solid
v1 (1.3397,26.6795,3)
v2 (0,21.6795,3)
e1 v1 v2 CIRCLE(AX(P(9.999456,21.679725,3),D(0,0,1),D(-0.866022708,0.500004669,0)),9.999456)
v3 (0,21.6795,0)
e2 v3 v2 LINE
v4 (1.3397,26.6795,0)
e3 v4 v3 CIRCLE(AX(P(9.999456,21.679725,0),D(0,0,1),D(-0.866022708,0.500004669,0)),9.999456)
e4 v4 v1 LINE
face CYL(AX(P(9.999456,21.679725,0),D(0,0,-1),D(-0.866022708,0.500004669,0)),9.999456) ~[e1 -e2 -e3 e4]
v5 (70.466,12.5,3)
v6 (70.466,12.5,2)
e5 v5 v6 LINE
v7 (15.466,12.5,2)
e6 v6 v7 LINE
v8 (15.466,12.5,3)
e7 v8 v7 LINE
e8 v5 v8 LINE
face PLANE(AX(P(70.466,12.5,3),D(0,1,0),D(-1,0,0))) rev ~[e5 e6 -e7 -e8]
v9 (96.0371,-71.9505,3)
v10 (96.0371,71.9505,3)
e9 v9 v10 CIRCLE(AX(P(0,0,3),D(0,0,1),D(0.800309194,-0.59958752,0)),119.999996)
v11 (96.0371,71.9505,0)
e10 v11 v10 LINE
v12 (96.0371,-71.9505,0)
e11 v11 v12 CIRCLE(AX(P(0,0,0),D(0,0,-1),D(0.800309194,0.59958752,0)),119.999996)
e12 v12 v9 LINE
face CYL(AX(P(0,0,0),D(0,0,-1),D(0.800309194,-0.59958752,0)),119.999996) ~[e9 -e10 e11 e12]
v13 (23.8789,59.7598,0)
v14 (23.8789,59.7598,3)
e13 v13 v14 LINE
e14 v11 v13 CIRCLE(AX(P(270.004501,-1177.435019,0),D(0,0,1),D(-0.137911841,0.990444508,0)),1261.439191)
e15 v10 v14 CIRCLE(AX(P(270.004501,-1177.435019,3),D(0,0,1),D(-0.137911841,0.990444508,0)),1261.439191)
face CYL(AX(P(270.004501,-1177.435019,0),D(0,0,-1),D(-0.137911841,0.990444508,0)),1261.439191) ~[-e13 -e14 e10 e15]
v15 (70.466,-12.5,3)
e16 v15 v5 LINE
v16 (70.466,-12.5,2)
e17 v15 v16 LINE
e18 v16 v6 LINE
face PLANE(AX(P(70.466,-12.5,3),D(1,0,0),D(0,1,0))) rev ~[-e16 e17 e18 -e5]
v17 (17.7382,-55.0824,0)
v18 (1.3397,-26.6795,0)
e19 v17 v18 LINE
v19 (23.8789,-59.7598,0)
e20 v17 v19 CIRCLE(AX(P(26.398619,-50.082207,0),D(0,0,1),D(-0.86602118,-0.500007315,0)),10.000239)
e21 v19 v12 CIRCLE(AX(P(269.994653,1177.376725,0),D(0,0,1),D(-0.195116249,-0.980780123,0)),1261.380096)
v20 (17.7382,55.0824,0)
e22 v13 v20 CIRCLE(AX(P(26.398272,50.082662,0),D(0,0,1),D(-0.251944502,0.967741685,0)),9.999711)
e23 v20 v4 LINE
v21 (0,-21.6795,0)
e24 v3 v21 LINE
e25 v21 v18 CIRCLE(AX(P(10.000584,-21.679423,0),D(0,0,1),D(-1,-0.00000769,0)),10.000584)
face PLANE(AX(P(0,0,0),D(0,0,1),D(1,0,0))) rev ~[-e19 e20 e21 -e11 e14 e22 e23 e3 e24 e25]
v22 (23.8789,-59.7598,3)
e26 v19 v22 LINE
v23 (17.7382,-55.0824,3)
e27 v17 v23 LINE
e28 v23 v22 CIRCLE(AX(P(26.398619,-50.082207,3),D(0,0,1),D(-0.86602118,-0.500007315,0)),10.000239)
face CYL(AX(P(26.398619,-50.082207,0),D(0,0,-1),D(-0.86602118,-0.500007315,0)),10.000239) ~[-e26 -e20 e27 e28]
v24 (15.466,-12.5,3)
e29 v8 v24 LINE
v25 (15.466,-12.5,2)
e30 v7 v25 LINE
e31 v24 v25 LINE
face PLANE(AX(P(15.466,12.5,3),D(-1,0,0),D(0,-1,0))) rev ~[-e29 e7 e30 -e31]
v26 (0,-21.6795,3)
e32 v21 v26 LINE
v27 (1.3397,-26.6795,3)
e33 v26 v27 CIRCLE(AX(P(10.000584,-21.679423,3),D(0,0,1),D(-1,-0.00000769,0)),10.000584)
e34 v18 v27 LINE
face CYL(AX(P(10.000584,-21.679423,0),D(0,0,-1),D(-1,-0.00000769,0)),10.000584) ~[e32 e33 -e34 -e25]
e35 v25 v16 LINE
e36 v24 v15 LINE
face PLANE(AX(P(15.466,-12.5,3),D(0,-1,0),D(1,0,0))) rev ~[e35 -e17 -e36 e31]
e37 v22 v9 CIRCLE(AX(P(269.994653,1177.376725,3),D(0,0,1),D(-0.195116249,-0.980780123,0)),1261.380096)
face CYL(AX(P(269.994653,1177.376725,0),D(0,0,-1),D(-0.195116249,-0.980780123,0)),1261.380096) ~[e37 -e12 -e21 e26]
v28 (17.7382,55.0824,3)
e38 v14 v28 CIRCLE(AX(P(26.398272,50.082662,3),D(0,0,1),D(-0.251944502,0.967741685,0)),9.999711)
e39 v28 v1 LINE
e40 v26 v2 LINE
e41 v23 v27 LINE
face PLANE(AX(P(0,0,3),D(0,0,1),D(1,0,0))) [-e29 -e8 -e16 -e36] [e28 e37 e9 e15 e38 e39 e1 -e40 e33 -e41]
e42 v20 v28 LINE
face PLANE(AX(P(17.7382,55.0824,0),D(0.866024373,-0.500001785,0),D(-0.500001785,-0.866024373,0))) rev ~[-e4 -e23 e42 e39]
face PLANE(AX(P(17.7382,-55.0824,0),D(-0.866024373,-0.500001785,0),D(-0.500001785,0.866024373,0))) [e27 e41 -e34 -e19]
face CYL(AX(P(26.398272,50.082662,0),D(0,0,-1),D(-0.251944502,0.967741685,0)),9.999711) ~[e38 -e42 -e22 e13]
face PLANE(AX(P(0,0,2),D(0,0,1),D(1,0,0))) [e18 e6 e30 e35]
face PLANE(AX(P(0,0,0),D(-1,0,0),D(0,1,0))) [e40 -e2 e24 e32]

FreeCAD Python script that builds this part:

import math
import FreeCAD as App
import Part
import Sketcher
from FreeCAD import Vector
Q = App.Units.Quantity

doc = App.newDocument("Part")
body = doc.addObject("PartDesign::Body", "Body")

# Sketch on XY plane
sketch1 = body.newObject("Sketcher::SketchObject", "Sketch")
sketch1.AttachmentSupport = (doc.getObject("XY_Plane"), [""])
sketch1.MapMode = "FlatFace"
sketch1.addGeometry([
    Part.LineSegment(Vector(0, 22, 0), Vector(0, -22, 0)),  # 0
    Part.ArcOfCircle(Part.Circle(Vector(10, -22, 0), Vector(0, 0, 1), 10), math.radians(180), math.radians(210)),  # 1
    Part.LineSegment(Vector(1, -27, 0), Vector(18, -55, 0)),  # 2
    Part.ArcOfCircle(Part.Circle(Vector(26, -50, 0), Vector(0, 0, 1), 10), math.radians(-150), math.radians(-105)),  # 3
    Part.ArcOfCircle(Part.Circle(Vector(270, 1177, 0), Vector(0, 0, 1), 1261), math.radians(-101.25), math.radians(-97.93)),  # 4
    Part.ArcOfCircle(Part.Circle(Vector(0, 0, 0), Vector(0, 0, 1), 120), math.radians(-37), math.radians(37)),  # 5
    Part.ArcOfCircle(Part.Circle(Vector(270, -1177, 0), Vector(0, 0, 1), 1261), math.radians(97.93), math.radians(101.25)),  # 6
    Part.ArcOfCircle(Part.Circle(Vector(26, 50, 0), Vector(0, 0, 1), 10), math.radians(105), math.radians(150)),  # 7
    Part.LineSegment(Vector(18, 55, 0), Vector(1, 27, 0)),  # 8
    Part.ArcOfCircle(Part.Circle(Vector(10, 22, 0), Vector(0, 0, 1), 10), math.radians(150), math.radians(180)),  # 9
], False)
sketch1.addConstraint([
    Sketcher.Constraint("Tangent", 0, 2, 1, 1),
    Sketcher.Constraint("Tangent", 1, 2, 2, 1),
    Sketcher.Constraint("Tangent", 2, 2, 3, 1),
    Sketcher.Constraint("Coincident", 3, 2, 4, 1),
    Sketcher.Constraint("Coincident", 4, 2, 5, 1),
    Sketcher.Constraint("Coincident", 5, 2, 6, 1),
    Sketcher.Constraint("Coincident", 6, 2, 7, 1),
    Sketcher.Constraint("Tangent", 7, 2, 8, 1),
    Sketcher.Constraint("Tangent", 8, 2, 9, 1),
    Sketcher.Constraint("Tangent", 9, 2, 0, 1),
    Sketcher.Constraint("Vertical", 0),
    Sketcher.Constraint("Coincident", 5, 3, -1, 1),
    Sketcher.Constraint("Equal", 1, 3),
    Sketcher.Constraint("Equal", 3, 7),
    Sketcher.Constraint("Equal", 7, 9),
    Sketcher.Constraint("Symmetric", 0, 2, 9, 2, -1, 1),
    Sketcher.Constraint("Symmetric", 3, 3, 7, 3, -1),
    Sketcher.Constraint("Vertical", 3, 2, 6, 2),
    Sketcher.Constraint("Radius", 1, Q("10 mm")),
    Sketcher.Constraint("Radius", 5, Q("120 mm")),
    Sketcher.Constraint("Angle", 8, Q("-120 deg")),
    Sketcher.Constraint("Radius", 4, Q("1261.38 mm")),
    Sketcher.Constraint("Radius", 6, Q("1261.4392 mm")),
    Sketcher.Constraint("DistanceY", 3, 3, 7, 3, Q("100.1648 mm")),
    Sketcher.Constraint("DistanceY", 0, 2, 0, 1, Q("43.359 mm")),
    Sketcher.Constraint("DistanceY", 1, 3, 5, 2, Q("93.63 mm")),
    Sketcher.Constraint("DistanceY", 6, 3, -1, 1, Q("1177.435 mm")),
    Sketcher.Constraint("DistanceX", -1, 1, 4, 3, Q("269.9947 mm")),
])
pad1 = body.newObject("PartDesign::Pad", "Pad")
pad1.Profile = sketch1
pad1.Length = 3

# Sketch on XY plane
sketch2 = body.newObject("Sketcher::SketchObject", "Sketch001")
sketch2.AttachmentSupport = (doc.getObject("XY_Plane"), [""])
sketch2.MapMode = "FlatFace"
sketch2.AttachmentOffset = App.Placement(Vector(0, 0, 3), App.Rotation())
sketch2.addGeometry([
    Part.LineSegment(Vector(15, 12, 0), Vector(15, -12, 0)),
    Part.LineSegment(Vector(15, -12, 0), Vector(70, -12, 0)),
    Part.LineSegment(Vector(70, -12, 0), Vector(70, 12, 0)),
    Part.LineSegment(Vector(70, 12, 0), Vector(15, 12, 0)),
], False)
sketch2.addConstraint([
    Sketcher.Constraint("Coincident", 0, 2, 1, 1),
    Sketcher.Constraint("Coincident", 1, 2, 2, 1),
    Sketcher.Constraint("Coincident", 2, 2, 3, 1),
    Sketcher.Constraint("Coincident", 3, 2, 0, 1),
    Sketcher.Constraint("Vertical", 0),
    Sketcher.Constraint("Horizontal", 1),
    Sketcher.Constraint("Vertical", 2),
    Sketcher.Constraint("Horizontal", 3),
    Sketcher.Constraint("DistanceX", 1, 1, 1, 2, Q("55 mm")),
    Sketcher.Constraint("DistanceY", 0, 2, 0, 1, Q("25 mm")),
    Sketcher.Constraint("DistanceY", 0, 2, -1, 1, Q("12.5 mm")),
    Sketcher.Constraint("DistanceX", -1, 1, 0, 2, Q("15.466 mm")),
])
pocket1 = body.newObject("PartDesign::Pocket", "Pocket")
pocket1.Profile = sketch2
pocket1.Length = 1

doc.recompute()
